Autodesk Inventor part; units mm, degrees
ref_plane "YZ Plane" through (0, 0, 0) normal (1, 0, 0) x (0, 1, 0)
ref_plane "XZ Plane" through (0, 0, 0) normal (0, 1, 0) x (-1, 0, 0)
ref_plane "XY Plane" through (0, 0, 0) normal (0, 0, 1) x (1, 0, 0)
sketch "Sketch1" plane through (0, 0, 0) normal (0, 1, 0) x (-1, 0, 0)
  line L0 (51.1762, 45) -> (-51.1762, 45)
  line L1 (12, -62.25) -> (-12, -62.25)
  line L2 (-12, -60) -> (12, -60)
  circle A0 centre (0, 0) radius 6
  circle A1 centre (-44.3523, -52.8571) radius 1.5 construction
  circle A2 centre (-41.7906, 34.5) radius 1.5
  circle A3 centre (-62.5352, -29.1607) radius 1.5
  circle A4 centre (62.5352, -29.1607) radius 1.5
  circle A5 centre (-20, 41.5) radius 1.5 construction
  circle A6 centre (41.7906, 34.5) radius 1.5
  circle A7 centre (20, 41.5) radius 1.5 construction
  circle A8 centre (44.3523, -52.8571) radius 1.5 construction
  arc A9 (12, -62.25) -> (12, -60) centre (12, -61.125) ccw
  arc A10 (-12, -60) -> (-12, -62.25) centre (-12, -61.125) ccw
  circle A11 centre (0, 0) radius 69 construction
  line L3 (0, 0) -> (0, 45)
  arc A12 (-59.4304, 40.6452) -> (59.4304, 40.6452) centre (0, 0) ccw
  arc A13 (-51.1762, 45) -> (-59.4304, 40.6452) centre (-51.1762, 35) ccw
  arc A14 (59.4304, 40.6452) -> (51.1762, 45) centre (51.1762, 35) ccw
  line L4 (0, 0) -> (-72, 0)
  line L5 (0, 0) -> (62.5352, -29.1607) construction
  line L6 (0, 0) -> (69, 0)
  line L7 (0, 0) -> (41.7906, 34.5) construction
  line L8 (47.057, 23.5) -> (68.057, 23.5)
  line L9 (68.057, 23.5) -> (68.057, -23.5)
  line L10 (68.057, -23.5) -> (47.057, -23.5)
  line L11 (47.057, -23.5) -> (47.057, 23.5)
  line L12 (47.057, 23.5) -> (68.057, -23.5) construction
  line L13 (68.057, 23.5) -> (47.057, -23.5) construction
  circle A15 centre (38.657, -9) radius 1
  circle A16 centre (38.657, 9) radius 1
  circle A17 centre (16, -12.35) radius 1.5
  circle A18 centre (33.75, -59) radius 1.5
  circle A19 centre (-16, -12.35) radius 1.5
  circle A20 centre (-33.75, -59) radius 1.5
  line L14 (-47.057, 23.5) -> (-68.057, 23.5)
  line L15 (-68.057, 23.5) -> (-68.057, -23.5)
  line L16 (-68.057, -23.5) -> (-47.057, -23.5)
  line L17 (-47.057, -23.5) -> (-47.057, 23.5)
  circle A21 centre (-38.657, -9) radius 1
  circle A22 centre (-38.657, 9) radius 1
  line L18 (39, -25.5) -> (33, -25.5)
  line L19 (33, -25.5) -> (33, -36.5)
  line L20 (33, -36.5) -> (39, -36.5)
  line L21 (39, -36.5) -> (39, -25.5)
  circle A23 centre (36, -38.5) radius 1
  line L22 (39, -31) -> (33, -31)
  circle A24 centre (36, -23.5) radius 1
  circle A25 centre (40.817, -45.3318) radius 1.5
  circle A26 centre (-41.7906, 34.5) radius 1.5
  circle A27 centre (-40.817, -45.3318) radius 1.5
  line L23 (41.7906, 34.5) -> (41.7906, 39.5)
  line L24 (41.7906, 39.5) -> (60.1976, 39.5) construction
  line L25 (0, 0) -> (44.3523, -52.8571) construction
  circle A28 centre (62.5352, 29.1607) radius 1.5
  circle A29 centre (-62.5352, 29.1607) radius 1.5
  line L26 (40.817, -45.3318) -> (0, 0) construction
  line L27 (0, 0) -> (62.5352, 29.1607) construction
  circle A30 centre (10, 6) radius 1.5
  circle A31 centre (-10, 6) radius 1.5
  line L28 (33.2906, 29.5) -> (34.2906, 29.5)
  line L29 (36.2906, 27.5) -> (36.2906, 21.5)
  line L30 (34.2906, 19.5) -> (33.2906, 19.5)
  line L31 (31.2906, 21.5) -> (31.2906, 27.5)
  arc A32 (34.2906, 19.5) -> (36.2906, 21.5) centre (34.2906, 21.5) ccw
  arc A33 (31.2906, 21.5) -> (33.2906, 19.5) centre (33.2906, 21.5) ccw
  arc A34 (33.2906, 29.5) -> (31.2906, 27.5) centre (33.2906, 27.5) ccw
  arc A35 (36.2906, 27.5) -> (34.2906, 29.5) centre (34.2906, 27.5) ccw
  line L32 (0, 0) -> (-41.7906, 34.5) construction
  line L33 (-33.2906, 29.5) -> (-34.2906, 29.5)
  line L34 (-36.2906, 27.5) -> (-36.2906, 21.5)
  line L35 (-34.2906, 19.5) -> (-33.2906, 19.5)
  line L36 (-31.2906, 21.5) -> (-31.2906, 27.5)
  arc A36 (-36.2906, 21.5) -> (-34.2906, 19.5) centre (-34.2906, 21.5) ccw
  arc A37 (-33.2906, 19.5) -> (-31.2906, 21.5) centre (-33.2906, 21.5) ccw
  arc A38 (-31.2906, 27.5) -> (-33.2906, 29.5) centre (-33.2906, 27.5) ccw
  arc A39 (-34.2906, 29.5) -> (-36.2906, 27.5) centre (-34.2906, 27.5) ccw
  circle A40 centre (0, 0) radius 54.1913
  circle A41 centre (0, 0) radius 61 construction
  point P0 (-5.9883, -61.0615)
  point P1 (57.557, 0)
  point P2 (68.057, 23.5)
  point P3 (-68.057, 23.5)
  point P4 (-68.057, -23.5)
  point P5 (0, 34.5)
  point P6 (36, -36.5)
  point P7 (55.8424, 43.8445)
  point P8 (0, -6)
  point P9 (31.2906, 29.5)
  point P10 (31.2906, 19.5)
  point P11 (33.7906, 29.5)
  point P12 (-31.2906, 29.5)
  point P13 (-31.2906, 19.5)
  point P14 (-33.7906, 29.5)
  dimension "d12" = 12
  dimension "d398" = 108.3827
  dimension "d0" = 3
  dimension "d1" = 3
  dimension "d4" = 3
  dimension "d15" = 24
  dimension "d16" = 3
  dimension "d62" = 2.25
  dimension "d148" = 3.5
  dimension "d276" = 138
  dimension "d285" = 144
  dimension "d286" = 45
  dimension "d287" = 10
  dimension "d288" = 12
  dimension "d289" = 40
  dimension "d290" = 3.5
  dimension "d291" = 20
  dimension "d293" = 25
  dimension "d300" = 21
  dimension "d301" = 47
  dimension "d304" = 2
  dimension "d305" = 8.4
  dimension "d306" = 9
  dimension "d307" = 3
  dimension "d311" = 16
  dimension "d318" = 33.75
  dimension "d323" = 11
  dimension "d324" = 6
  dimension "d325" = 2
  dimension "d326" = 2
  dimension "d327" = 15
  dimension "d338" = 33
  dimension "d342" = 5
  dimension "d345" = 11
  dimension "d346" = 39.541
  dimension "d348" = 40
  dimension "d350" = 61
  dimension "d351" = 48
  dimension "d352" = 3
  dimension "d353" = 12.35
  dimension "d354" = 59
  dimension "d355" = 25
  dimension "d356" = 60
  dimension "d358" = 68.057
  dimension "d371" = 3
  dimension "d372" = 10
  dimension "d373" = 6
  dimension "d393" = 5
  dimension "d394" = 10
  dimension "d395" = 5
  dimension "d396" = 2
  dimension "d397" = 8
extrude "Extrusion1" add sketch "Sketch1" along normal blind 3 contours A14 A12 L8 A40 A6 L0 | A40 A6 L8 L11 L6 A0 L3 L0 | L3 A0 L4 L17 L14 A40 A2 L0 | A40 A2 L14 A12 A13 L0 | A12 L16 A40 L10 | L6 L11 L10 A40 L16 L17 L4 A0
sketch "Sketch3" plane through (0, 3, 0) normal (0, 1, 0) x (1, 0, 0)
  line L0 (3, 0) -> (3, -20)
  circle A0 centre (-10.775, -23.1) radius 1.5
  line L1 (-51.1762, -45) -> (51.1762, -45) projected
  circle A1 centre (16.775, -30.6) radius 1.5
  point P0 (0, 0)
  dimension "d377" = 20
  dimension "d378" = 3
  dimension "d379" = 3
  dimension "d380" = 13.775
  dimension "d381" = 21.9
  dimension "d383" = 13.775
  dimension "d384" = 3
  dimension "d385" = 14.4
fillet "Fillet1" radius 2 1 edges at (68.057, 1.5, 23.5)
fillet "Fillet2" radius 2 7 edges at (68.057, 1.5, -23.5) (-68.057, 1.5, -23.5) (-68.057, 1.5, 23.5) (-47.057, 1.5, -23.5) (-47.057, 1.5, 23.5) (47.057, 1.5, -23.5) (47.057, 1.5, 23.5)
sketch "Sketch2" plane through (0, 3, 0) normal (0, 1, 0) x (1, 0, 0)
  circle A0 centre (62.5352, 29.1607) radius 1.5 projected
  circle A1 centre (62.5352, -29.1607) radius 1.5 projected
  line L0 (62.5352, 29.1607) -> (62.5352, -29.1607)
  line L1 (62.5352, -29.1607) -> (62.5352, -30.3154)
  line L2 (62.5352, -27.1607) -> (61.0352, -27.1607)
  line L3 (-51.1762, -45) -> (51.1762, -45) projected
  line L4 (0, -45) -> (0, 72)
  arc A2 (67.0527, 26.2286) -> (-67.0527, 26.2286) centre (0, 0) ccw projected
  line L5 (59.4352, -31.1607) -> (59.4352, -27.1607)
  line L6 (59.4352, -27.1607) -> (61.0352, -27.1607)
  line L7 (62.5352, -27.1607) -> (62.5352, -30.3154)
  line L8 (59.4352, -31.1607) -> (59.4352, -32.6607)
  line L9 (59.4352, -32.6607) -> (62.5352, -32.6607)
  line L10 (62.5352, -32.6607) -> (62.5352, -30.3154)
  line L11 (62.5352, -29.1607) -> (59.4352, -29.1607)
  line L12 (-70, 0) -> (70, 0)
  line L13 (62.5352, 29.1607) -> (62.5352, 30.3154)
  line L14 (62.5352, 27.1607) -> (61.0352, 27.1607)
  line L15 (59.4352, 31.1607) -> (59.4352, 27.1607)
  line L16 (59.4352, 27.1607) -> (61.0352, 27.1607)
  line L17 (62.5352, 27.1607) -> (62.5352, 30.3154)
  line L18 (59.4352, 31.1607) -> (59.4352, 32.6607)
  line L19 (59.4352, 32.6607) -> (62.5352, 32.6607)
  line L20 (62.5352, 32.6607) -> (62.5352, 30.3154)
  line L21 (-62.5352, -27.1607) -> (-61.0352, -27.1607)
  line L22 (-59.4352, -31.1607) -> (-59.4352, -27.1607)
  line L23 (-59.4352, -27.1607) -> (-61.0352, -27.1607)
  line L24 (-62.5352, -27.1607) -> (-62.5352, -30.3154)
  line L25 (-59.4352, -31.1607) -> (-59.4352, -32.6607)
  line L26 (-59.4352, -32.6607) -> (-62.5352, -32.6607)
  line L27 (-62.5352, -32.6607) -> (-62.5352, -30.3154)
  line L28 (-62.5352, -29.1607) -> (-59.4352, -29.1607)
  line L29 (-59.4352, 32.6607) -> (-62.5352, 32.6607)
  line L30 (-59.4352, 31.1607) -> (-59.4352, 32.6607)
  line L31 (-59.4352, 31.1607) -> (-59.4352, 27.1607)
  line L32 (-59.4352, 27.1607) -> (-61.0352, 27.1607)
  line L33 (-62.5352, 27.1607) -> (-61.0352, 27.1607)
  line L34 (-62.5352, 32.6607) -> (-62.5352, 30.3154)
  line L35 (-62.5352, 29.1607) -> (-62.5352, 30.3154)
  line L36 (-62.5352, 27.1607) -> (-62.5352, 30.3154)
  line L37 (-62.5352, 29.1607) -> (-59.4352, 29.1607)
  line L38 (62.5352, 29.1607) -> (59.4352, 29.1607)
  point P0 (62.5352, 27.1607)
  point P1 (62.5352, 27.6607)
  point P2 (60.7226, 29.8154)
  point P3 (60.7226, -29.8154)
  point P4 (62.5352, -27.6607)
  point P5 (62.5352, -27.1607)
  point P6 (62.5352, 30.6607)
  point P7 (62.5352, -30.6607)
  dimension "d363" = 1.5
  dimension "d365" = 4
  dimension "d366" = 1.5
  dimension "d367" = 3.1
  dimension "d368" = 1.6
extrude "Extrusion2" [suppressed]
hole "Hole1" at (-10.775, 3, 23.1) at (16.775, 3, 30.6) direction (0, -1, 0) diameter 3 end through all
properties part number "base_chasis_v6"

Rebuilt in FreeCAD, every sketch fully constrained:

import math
import FreeCAD as App
import Part
import Sketcher

V = App.Vector


def edges_at(feature, points):
    """Names of the edges that pass closest to the given points."""
    edges = feature.Shape.Edges
    near = lambda p: min(range(len(edges)), key=lambda i: edges[i].distToShape(Part.Vertex(*p))[0])
    return sorted({f"Edge{near(p) + 1}" for p in points})

doc = App.newDocument("Part")
params = doc.addObject("Spreadsheet::Sheet", "Params")
for row, (alias, value) in enumerate([
    ("sketch1_diameter", "3 mm"),
    ("sketch1_diameter2", "12 mm"),
    ("sketch1_diameter3", "2 mm"),
    ("sketch1_radius", "10 mm"),
    ("sketch1_radius2", "72 mm"),
    ("pad1_length", "3 mm"),
    ("fillet_radius", "2 mm"),
    ("fillet2_radius", "2 mm"),
    ("sketch2_diameter", "3 mm"),
    ("hole_diameter", "3 mm"),
], start=1):
    params.set(f"A{row}", alias)
    params.set(f"B{row}", "=" + value)
    params.setAlias(f"B{row}", alias)

body = doc.addObject("PartDesign::Body", "Body")

# Sketch on XZ plane
sketch1 = body.newObject("Sketcher::SketchObject", "Sketch")
sketch1.AttachmentSupport = (doc.getObject("XZ_Plane"), [""])
sketch1.MapMode = "FlatFace"
sketch1.addGeometry([
    Part.ArcOfCircle(Part.Circle(V(-51.2, 35, 0), V(0, 0, 1), 10), math.radians(90), math.radians(146)),  # 0
    Part.LineSegment(V(-51.2, 45, 0), V(51.2, 45, 0)),  # 1
    Part.ArcOfCircle(Part.Circle(V(51.2, 35, 0), V(0, 0, 1), 10), math.radians(34), math.radians(90)),  # 2
    Part.ArcOfCircle(Part.Circle(V(0, 0, 0), V(0, 0, 1), 72), math.radians(19.05), math.radians(34.37)),  # 3
    Part.LineSegment(V(68.1, 23.5, 0), V(47.1, 23.5, 0)),  # 4
    Part.LineSegment(V(47.1, 23.5, 0), V(47.1, -23.5, 0)),  # 5
    Part.LineSegment(V(47.1, -23.5, 0), V(68.1, -23.5, 0)),  # 6
    Part.ArcOfCircle(Part.Circle(V(0, 0, 0), V(0, 0, 1), 72), math.radians(-161), math.radians(-19)),  # 7
    Part.LineSegment(V(-68.1, -23.5, 0), V(-47.1, -23.5, 0)),  # 8
    Part.LineSegment(V(-47.1, -23.5, 0), V(-47.1, 23.5, 0)),  # 9
    Part.LineSegment(V(-47.1, 23.5, 0), V(-68.1, 23.5, 0)),  # 10
    Part.ArcOfCircle(Part.Circle(V(0, 0, 0), V(0, 0, 1), 72), math.radians(145.63), math.radians(160.95)),  # 11
    Part.Circle(V(-41.8, 34.5, 0), V(0, 0, 1), 1.5),  # 12
    Part.Circle(V(-62.5, 29.2, 0), V(0, 0, 1), 1.5),  # 13
    Part.ArcOfCircle(Part.Circle(V(-34.3, 27.5, 0), V(0, 0, 1), 2), math.radians(90), math.radians(180)),  # 14
    Part.LineSegment(V(-36.3, 27.5, 0), V(-36.3, 21.5, 0)),  # 15
    Part.ArcOfCircle(Part.Circle(V(-34.3, 21.5, 0), V(0, 0, 1), 2), math.radians(180), math.radians(270)),  # 16
    Part.LineSegment(V(-34.3, 19.5, 0), V(-33.3, 19.5, 0)),  # 17
    Part.ArcOfCircle(Part.Circle(V(-33.3, 21.5, 0), V(0, 0, 1), 2), math.radians(-90), math.radians(0)),  # 18
    Part.LineSegment(V(-31.3, 21.5, 0), V(-31.3, 27.5, 0)),  # 19
    Part.ArcOfCircle(Part.Circle(V(-33.3, 27.5, 0), V(0, 0, 1), 2), math.radians(0), math.radians(90)),  # 20
    Part.LineSegment(V(-33.3, 29.5, 0), V(-34.3, 29.5, 0)),  # 21
    Part.Circle(V(0, 0, 0), V(0, 0, 1), 6),  # 22
    Part.Circle(V(-10, 6, 0), V(0, 0, 1), 1.5),  # 23
    Part.Circle(V(-38.7, 9, 0), V(0, 0, 1), 1),  # 24
    Part.Circle(V(-38.7, -9, 0), V(0, 0, 1), 1),  # 25
    Part.Circle(V(38.7, -9, 0), V(0, 0, 1), 1),  # 26
    Part.Circle(V(16, -12.3, 0), V(0, 0, 1), 1.5),  # 27
    Part.Circle(V(-36, -38.5, 0), V(0, 0, 1), 1),  # 28
    Part.LineSegment(V(-33, -25.5, 0), V(-39, -25.5, 0)),  # 29
    Part.LineSegment(V(-39, -25.5, 0), V(-39, -36.5, 0)),  # 30
    Part.LineSegment(V(-39, -36.5, 0), V(-33, -36.5, 0)),  # 31
    Part.LineSegment(V(-33, -36.5, 0), V(-33, -25.5, 0)),  # 32
    Part.Circle(V(-16, -12.3, 0), V(0, 0, 1), 1.5),  # 33
    Part.Circle(V(-36, -23.5, 0), V(0, 0, 1), 1),  # 34
    Part.ArcOfCircle(Part.Circle(V(33.3, 27.5, 0), V(0, 0, 1), 2), math.radians(90), math.radians(180)),  # 35
    Part.LineSegment(V(31.3, 27.5, 0), V(31.3, 21.5, 0)),  # 36
    Part.ArcOfCircle(Part.Circle(V(33.3, 21.5, 0), V(0, 0, 1), 2), math.radians(180), math.radians(270)),  # 37
    Part.LineSegment(V(33.3, 19.5, 0), V(34.3, 19.5, 0)),  # 38
    Part.ArcOfCircle(Part.Circle(V(34.3, 21.5, 0), V(0, 0, 1), 2), math.radians(-90), math.radians(0)),  # 39
    Part.LineSegment(V(36.3, 21.5, 0), V(36.3, 27.5, 0)),  # 40
    Part.ArcOfCircle(Part.Circle(V(34.3, 27.5, 0), V(0, 0, 1), 2), math.radians(0), math.radians(90)),  # 41
    Part.LineSegment(V(34.3, 29.5, 0), V(33.3, 29.5, 0)),  # 42
    Part.Circle(V(41.8, 34.5, 0), V(0, 0, 1), 1.5),  # 43
    Part.Circle(V(38.7, 9, 0), V(0, 0, 1), 1),  # 44
    Part.Circle(V(10, 6, 0), V(0, 0, 1), 1.5),  # 45
    Part.Circle(V(-62.5, -29.2, 0), V(0, 0, 1), 1.5),  # 46
    Part.Circle(V(40.8, -45.3, 0), V(0, 0, 1), 1.5),  # 47
    Part.Circle(V(33.8, -59, 0), V(0, 0, 1), 1.5),  # 48
    Part.Circle(V(62.5, -29.2, 0), V(0, 0, 1), 1.5),  # 49
    Part.ArcOfCircle(Part.Circle(V(-12, -61.1, 0), V(0, 0, 1), 1.1), math.radians(90), math.radians(270)),  # 50
    Part.LineSegment(V(-12, -62.2, 0), V(12, -62.2, 0)),  # 51
    Part.ArcOfCircle(Part.Circle(V(12, -61.1, 0), V(0, 0, 1), 1.1), math.radians(-90), math.radians(90)),  # 52
    Part.LineSegment(V(12, -60, 0), V(-12, -60, 0)),  # 53
    Part.Circle(V(-33.8, -59, 0), V(0, 0, 1), 1.5),  # 54
    Part.Circle(V(-40.8, -45.3, 0), V(0, 0, 1), 1.5),  # 55
    Part.Circle(V(62.5, 29.2, 0), V(0, 0, 1), 1.5),  # 56
], False)
sketch1.addConstraint([
    Sketcher.Constraint("Tangent", 0, 1, 1, 1),
    Sketcher.Constraint("Tangent", 1, 2, 2, 2),
    Sketcher.Constraint("Tangent", 2, 1, 3, 2),
    Sketcher.Constraint("Coincident", 3, 1, 4, 1),
    Sketcher.Constraint("Coincident", 4, 2, 5, 1),
    Sketcher.Constraint("Coincident", 5, 2, 6, 1),
    Sketcher.Constraint("Coincident", 6, 2, 7, 2),
    Sketcher.Constraint("Coincident", 7, 1, 8, 1),
    Sketcher.Constraint("Coincident", 8, 2, 9, 1),
    Sketcher.Constraint("Coincident", 9, 2, 10, 1),
    Sketcher.Constraint("Coincident", 10, 2, 11, 2),
    Sketcher.Constraint("Tangent", 11, 1, 0, 2),
    Sketcher.Constraint("Tangent", 14, 2, 15, 1),
    Sketcher.Constraint("Tangent", 15, 2, 16, 1),
    Sketcher.Constraint("Tangent", 16, 2, 17, 1),
    Sketcher.Constraint("Tangent", 17, 2, 18, 1),
    Sketcher.Constraint("Tangent", 18, 2, 19, 1),
    Sketcher.Constraint("Tangent", 19, 2, 20, 1),
    Sketcher.Constraint("Tangent", 20, 2, 21, 1),
    Sketcher.Constraint("Tangent", 21, 2, 14, 1),
    Sketcher.Constraint("Coincident", 29, 2, 30, 1),
    Sketcher.Constraint("Coincident", 30, 2, 31, 1),
    Sketcher.Constraint("Coincident", 31, 2, 32, 1),
    Sketcher.Constraint("Coincident", 32, 2, 29, 1),
    Sketcher.Constraint("Tangent", 35, 2, 36, 1),
    Sketcher.Constraint("Tangent", 36, 2, 37, 1),
    Sketcher.Constraint("Tangent", 37, 2, 38, 1),
    Sketcher.Constraint("Tangent", 38, 2, 39, 1),
    Sketcher.Constraint("Tangent", 39, 2, 40, 1),
    Sketcher.Constraint("Tangent", 40, 2, 41, 1),
    Sketcher.Constraint("Tangent", 41, 2, 42, 1),
    Sketcher.Constraint("Tangent", 42, 2, 35, 1),
    Sketcher.Constraint("Tangent", 50, 2, 51, 1),
    Sketcher.Constraint("Tangent", 51, 2, 52, 1),
    Sketcher.Constraint("Tangent", 52, 2, 53, 1),
    Sketcher.Constraint("Tangent", 53, 2, 50, 1),
    Sketcher.Constraint("Horizontal", 1),
    Sketcher.Constraint("Horizontal", 4),
    Sketcher.Constraint("Vertical", 5),
    Sketcher.Constraint("Horizontal", 6),
    Sketcher.Constraint("Horizontal", 8),
    Sketcher.Constraint("Vertical", 9),
    Sketcher.Constraint("Horizontal", 10),
    Sketcher.Constraint("Vertical", 15),
    Sketcher.Constraint("Horizontal", 17),
    Sketcher.Constraint("Vertical", 19),
    Sketcher.Constraint("Horizontal", 21),
    Sketcher.Constraint("Horizontal", 29),
    Sketcher.Constraint("Vertical", 30),
    Sketcher.Constraint("Horizontal", 31),
    Sketcher.Constraint("Vertical", 32),
    Sketcher.Constraint("Vertical", 36),
    Sketcher.Constraint("Horizontal", 38),
    Sketcher.Constraint("Vertical", 40),
    Sketcher.Constraint("Horizontal", 42),
    Sketcher.Constraint("Horizontal", 51),
    Sketcher.Constraint("Horizontal", 53),
    Sketcher.Constraint("Coincident", 3, 3, -1, 1),
    Sketcher.Constraint("Coincident", 7, 3, -1, 1),
    Sketcher.Constraint("Coincident", 11, 3, -1, 1),
    Sketcher.Constraint("Coincident", 22, 3, -1, 1),
    Sketcher.Constraint("Equal", 0, 2),
    Sketcher.Constraint("Equal", 3, 7),
    Sketcher.Constraint("Equal", 7, 11),
    Sketcher.Constraint("Equal", 12, 13),
    Sketcher.Constraint("Equal", 14, 16),
    Sketcher.Constraint("Equal", 16, 18),
    Sketcher.Constraint("Equal", 18, 20),
    Sketcher.Constraint("Equal", 13, 23),
    Sketcher.Constraint("Equal", 24, 25),
    Sketcher.Constraint("Equal", 25, 26),
    Sketcher.Constraint("Equal", 23, 27),
    Sketcher.Constraint("Equal", 26, 28),
    Sketcher.Constraint("Equal", 27, 33),
    Sketcher.Constraint("Equal", 28, 34),
    Sketcher.Constraint("Equal", 20, 35),
    Sketcher.Constraint("Equal", 35, 37),
    Sketcher.Constraint("Equal", 37, 39),
    Sketcher.Constraint("Equal", 39, 41),
    Sketcher.Constraint("Equal", 33, 43),
    Sketcher.Constraint("Equal", 34, 44),
    Sketcher.Constraint("Equal", 43, 45),
    Sketcher.Constraint("Equal", 45, 46),
    Sketcher.Constraint("Equal", 46, 47),
    Sketcher.Constraint("Equal", 47, 48),
    Sketcher.Constraint("Equal", 48, 49),
    Sketcher.Constraint("Equal", 49, 54),
    Sketcher.Constraint("Equal", 54, 55),
    Sketcher.Constraint("Equal", 55, 56),
    Sketcher.Constraint("Symmetric", 24, 3, 26, 3, -1, 1),
    Sketcher.Constraint("Symmetric", 25, 3, 44, 3, -1, 1),
    Sketcher.Constraint("Symmetric", 13, 3, 49, 3, -1, 1),
    Sketcher.Constraint("Symmetric", 46, 3, 56, 3, -1, 1),
    Sketcher.Constraint("Symmetric", 4, 2, 8, 2, -1, 1),
    Sketcher.Constraint("Symmetric", 25, 3, 26, 3, -2),
    Sketcher.Constraint("Symmetric", 27, 3, 33, 3, -2),
    Sketcher.Constraint("Symmetric", 20, 3, 35, 3, -2),
    Sketcher.Constraint("Symmetric", 16, 3, 39, 3, -2),
    Sketcher.Constraint("Symmetric", 12, 3, 43, 3, -2),
    Sketcher.Constraint("Symmetric", 23, 3, 45, 3, -2),
    Sketcher.Constraint("Symmetric", 46, 3, 49, 3, -2),
    Sketcher.Constraint("Symmetric", 48, 3, 54, 3, -2),
    Sketcher.Constraint("Symmetric", 47, 3, 55, 3, -2),
    Sketcher.Constraint("Horizontal", 34, 3, 5, 2),
    Sketcher.Constraint("Horizontal", 6, 2, 7, 1),
    Sketcher.Constraint("Horizontal", 4, 2, 9, 2),
    Sketcher.Constraint("Vertical", 28, 3, 34, 3),
    Sketcher.Constraint("Equal", 31, 15),
    Sketcher.Constraint("Diameter", 12, 3.0),
    Sketcher.Constraint("Diameter", 22, 12.0),
    Sketcher.Constraint("Diameter", 24, 2.0),
    Sketcher.Constraint("Radius", 0, 10.0),
    Sketcher.Constraint("Radius", 3, 72.0),
    Sketcher.Constraint("Radius", 14, 2.0),
    Sketcher.Constraint("DistanceX", 4, 2, 4, 1, 21.0),
    Sketcher.Constraint("DistanceX", 29, 2, 29, 1, 6.0),
    Sketcher.Constraint("DistanceX", 51, 1, 51, 2, 24.0),
    Sketcher.Constraint("DistanceY", 5, 2, 5, 1, 47.0),
    Sketcher.Constraint("DistanceY", 30, 2, 30, 1, 11.0),
    Sketcher.Constraint("DistanceX", 23, 3, -1, 1, 10.0),
    Sketcher.Constraint("DistanceY", -1, 1, 23, 3, 6.0),
    Sketcher.Constraint("DistanceY", -1, 1, 24, 3, 9.0),
    Sketcher.Constraint("DistanceX", -1, 1, 27, 3, 16.0),
    Sketcher.Constraint("DistanceY", 48, 3, -1, 1, 59.0),
    Sketcher.Constraint("DistanceX", 50, 3, -1, 1, 12.0),
    Sketcher.Constraint("DistanceY", -1, 1, 0, 1, 45.0),
    Sketcher.Constraint("DistanceX", 31, 2, -1, 1, 33.0),
    Sketcher.Constraint("DistanceY", 52, 2, -1, 1, 60.0),
    Sketcher.Constraint("Radius", 50, 1.125),
    Sketcher.Constraint("DistanceX", 17, 1, 17, 2, 1.0),
    Sketcher.Constraint("DistanceY", 27, 3, -1, 1, 12.35),
    Sketcher.Constraint("DistanceX", -1, 1, 48, 3, 33.75),
    Sketcher.Constraint("DistanceX", 28, 3, -1, 1, 36.0),
    Sketcher.Constraint("DistanceY", -1, 1, 12, 3, 34.5),
    Sketcher.Constraint("DistanceY", -1, 1, 14, 3, 27.5),
    Sketcher.Constraint("DistanceY", 28, 3, -1, 1, 38.5),
    Sketcher.Constraint("DistanceY", 29, 2, -1, 1, 25.5),
    Sketcher.Constraint("DistanceX", 24, 3, -1, 1, 38.657),
    Sketcher.Constraint("DistanceX", -1, 1, 47, 3, 40.817),
    Sketcher.Constraint("DistanceX", 12, 3, -1, 1, 41.7906),
    Sketcher.Constraint("DistanceX", 13, 3, -1, 1, 62.5352),
    Sketcher.Constraint("DistanceY", -1, 1, 13, 3, 29.1607),
    Sketcher.Constraint("DistanceX", 14, 3, -1, 1, 34.2906),
    Sketcher.Constraint("DistanceY", 47, 3, -1, 1, 45.3318),
])
sketch1.setExpression("Constraints[108]", "Params.sketch1_diameter")
sketch1.setExpression("Constraints[109]", "Params.sketch1_diameter2")
sketch1.setExpression("Constraints[110]", "Params.sketch1_diameter3")
sketch1.setExpression("Constraints[111]", "Params.sketch1_radius")
sketch1.setExpression("Constraints[112]", "Params.sketch1_radius2")
pad1 = body.newObject("PartDesign::Pad", "Pad")
pad1.Profile = sketch1
pad1.setExpression("Length", "Params.pad1_length")
pad1.Reversed = True
doc.recompute()

fillet = body.newObject("PartDesign::Fillet", "Fillet")
fillet.Base = (pad1, edges_at(pad1, [(68.057, 1.5, 23.5)]))
fillet.setExpression("Radius", "Params.fillet_radius")
doc.recompute()

fillet2 = body.newObject("PartDesign::Fillet", "Fillet001")
fillet2.Base = (fillet, edges_at(fillet, [
    (68.057, 1.5, -23.5),
    (-68.057, 1.5, -23.5),
    (-68.057, 1.5, 23.5),
    (-47.057, 1.5, -23.5),
    (-47.057, 1.5, 23.5),
    (47.057, 1.5, -23.5),
    (47.057, 1.5, 23.5),
]))
fillet2.setExpression("Radius", "Params.fillet2_radius")

# Sketch on XZ plane
sketch2 = body.newObject("Sketcher::SketchObject", "Sketch001")
sketch2.AttachmentSupport = (doc.getObject("XZ_Plane"), [""])
sketch2.MapMode = "FlatFace"
sketch2.AttachmentOffset = App.Placement(V(0, 0, -3), App.Rotation())
sketch2.addGeometry([
    Part.Circle(V(-10.8, 23.1, 0), V(0, 0, 1), 1.5),
    Part.Circle(V(16.8, 30.6, 0), V(0, 0, 1), 1.5),
], False)
sketch2.addConstraint([
    Sketcher.Constraint("Equal", 0, 1),
    Sketcher.Constraint("Diameter", 0, 3.0),
    Sketcher.Constraint("DistanceY", -1, 1, 0, 3, 23.1),
    Sketcher.Constraint("DistanceY", -1, 1, 1, 3, 30.6),
    Sketcher.Constraint("DistanceX", 0, 3, 1, 3, 27.55),
    Sketcher.Constraint("DistanceX", 0, 3, -1, 1, 10.775),
])
sketch2.setExpression("Constraints[1]", "Params.sketch2_diameter")
doc.recompute()
hole = body.newObject("PartDesign::Hole", "Hole")
hole.Profile = sketch2
hole.ThreadType = "None"
hole.setExpression("Diameter", "Params.hole_diameter")
hole.DepthType = "ThroughAll"
hole.Reversed = True

doc.recompute()
